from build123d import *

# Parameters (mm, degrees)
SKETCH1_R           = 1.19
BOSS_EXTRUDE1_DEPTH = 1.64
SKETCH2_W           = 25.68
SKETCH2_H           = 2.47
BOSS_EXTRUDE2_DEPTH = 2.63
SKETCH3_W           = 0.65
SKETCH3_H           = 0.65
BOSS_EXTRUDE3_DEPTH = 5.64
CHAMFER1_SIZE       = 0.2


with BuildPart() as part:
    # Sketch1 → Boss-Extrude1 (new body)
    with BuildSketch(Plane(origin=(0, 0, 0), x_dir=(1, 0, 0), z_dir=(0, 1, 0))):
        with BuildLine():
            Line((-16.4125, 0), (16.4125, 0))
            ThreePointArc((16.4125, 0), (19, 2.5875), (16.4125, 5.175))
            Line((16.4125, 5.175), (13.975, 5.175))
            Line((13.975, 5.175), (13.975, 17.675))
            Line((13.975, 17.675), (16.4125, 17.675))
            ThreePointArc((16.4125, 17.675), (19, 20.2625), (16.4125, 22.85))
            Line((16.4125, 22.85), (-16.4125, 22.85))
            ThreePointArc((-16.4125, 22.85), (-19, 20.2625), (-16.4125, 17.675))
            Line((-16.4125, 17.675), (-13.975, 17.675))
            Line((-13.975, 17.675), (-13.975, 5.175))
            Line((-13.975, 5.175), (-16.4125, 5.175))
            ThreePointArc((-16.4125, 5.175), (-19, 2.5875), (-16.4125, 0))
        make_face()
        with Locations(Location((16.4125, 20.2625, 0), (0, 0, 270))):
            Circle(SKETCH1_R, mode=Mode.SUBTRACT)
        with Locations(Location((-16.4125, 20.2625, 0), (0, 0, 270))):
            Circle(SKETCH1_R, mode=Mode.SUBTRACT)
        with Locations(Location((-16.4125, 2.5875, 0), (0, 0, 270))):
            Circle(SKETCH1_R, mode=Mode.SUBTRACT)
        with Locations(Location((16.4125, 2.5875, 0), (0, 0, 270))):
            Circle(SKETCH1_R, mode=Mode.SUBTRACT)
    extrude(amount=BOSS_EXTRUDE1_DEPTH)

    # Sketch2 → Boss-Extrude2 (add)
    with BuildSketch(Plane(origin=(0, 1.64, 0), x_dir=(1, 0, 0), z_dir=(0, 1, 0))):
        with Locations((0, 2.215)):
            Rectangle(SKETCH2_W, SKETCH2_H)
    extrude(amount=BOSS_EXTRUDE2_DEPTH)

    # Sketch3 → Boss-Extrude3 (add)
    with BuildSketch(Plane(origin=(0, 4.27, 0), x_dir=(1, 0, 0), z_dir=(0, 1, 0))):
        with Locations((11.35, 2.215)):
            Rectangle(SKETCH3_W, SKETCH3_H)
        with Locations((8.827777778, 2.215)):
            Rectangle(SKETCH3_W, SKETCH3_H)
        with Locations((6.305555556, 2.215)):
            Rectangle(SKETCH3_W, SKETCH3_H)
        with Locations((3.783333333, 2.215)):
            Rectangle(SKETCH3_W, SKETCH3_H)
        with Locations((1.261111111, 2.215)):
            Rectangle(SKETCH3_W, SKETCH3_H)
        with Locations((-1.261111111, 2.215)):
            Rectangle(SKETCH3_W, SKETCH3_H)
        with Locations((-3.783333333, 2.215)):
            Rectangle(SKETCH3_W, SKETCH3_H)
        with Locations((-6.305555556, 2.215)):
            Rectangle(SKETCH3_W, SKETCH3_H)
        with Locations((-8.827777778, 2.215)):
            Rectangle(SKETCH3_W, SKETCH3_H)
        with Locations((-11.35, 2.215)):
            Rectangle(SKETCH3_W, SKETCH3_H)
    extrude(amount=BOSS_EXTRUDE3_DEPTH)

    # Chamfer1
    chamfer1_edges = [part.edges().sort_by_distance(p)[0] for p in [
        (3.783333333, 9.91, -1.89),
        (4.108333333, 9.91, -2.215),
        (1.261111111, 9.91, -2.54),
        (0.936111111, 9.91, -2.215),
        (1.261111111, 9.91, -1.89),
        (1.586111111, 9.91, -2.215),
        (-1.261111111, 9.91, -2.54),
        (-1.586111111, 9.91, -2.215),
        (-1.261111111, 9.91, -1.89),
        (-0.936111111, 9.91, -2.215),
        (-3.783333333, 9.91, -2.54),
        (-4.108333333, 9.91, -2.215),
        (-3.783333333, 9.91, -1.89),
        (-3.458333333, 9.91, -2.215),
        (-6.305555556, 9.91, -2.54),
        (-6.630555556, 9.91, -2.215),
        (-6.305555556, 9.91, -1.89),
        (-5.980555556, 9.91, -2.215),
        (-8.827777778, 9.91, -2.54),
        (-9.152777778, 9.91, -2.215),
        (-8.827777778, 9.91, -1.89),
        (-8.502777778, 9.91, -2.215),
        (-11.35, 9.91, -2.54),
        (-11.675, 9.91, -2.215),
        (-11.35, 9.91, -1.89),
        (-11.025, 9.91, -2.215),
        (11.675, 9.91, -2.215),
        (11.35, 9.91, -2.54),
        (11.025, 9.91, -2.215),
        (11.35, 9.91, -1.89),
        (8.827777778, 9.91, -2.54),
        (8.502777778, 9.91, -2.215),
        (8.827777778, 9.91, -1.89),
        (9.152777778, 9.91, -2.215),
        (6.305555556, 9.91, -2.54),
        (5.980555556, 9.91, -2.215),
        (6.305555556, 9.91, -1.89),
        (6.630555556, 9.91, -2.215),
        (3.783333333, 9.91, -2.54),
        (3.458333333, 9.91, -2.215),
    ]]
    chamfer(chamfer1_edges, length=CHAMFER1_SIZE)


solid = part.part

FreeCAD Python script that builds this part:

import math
import FreeCAD as App
import Part
import Sketcher
Q = App.Units.Quantity


def edges_at(feature, points):
    """Names of the edges that pass closest to the given points."""
    edges = feature.Shape.Edges
    near = lambda p: min(range(len(edges)), key=lambda i: edges[i].distToShape(Part.Vertex(*p))[0])
    return sorted({f"Edge{near(p) + 1}" for p in points})

doc = App.newDocument("Part")
params = doc.addObject("Spreadsheet::Sheet", "Params")
for row, (alias, value) in enumerate([
    ("sketch1_diameter", "2.38 mm"),
    ("sketch1_height", "12.5 mm"),
    ("pad1_length", "1.64 mm"),
    ("sketch2_width", "25.68 mm"),
    ("sketch2_height", "2.47 mm"),
    ("pad2_length", "2.63 mm"),
    ("sketch3_width", "0.65 mm"),
    ("pad3_length", "5.64 mm"),
    ("chamfer_size", "0.2 mm"),
], start=1):
    params.set(f"A{row}", alias)
    params.set(f"B{row}", "=" + value)
    params.setAlias(f"B{row}", alias)

body = doc.addObject("PartDesign::Body", "Body")

# Sketch on XZ plane
sketch1 = doc.addObject("Sketcher::SketchObject", "Sketch")
body.addObject(sketch1)
sketch1.AttachmentSupport = (doc.XZ_Plane, [""])
sketch1.MapMode = "FlatFace"
sketch1.addGeometry(Part.LineSegment(App.Vector(-16.4, 0, 0), App.Vector(16.4, 0, 0)), False)
sketch1.addGeometry(Part.ArcOfCircle(Part.Circle(App.Vector(16.4, -2.6, 0), App.Vector(0, 0, 1), 2.6), math.radians(-90), math.radians(90)), False)
sketch1.addGeometry(Part.LineSegment(App.Vector(16.4, -5.2, 0), App.Vector(14, -5.2, 0)), False)
sketch1.addGeometry(Part.LineSegment(App.Vector(14, -5.2, 0), App.Vector(14, -17.7, 0)), False)
sketch1.addGeometry(Part.LineSegment(App.Vector(14, -17.7, 0), App.Vector(16.4, -17.7, 0)), False)
sketch1.addGeometry(Part.ArcOfCircle(Part.Circle(App.Vector(16.4, -20.3, 0), App.Vector(0, 0, 1), 2.6), math.radians(-90), math.radians(90)), False)
sketch1.addGeometry(Part.LineSegment(App.Vector(16.4, -22.9, 0), App.Vector(-16.4, -22.9, 0)), False)
sketch1.addGeometry(Part.ArcOfCircle(Part.Circle(App.Vector(-16.4, -20.3, 0), App.Vector(0, 0, 1), 2.6), math.radians(90), math.radians(270)), False)
sketch1.addGeometry(Part.LineSegment(App.Vector(-16.4, -17.7, 0), App.Vector(-14, -17.7, 0)), False)
sketch1.addGeometry(Part.LineSegment(App.Vector(-14, -17.7, 0), App.Vector(-14, -5.2, 0)), False)
sketch1.addGeometry(Part.LineSegment(App.Vector(-14, -5.2, 0), App.Vector(-16.4, -5.2, 0)), False)
sketch1.addGeometry(Part.ArcOfCircle(Part.Circle(App.Vector(-16.4, -2.6, 0), App.Vector(0, 0, 1), 2.6), math.radians(90), math.radians(270)), False)
sketch1.addGeometry(Part.Circle(App.Vector(-16.4, -2.6, 0), App.Vector(0, 0, 1), 1.2), False)
sketch1.addGeometry(Part.Circle(App.Vector(16.4, -2.6, 0), App.Vector(0, 0, 1), 1.2), False)
sketch1.addGeometry(Part.Circle(App.Vector(-16.4, -20.3, 0), App.Vector(0, 0, 1), 1.2), False)
sketch1.addGeometry(Part.Circle(App.Vector(16.4, -20.3, 0), App.Vector(0, 0, 1), 1.2), False)
sketch1.addConstraint(Sketcher.Constraint("Tangent", 0, 2, 1, 2))
sketch1.addConstraint(Sketcher.Constraint("Tangent", 1, 1, 2, 1))
sketch1.addConstraint(Sketcher.Constraint("Coincident", 2, 2, 3, 1))
sketch1.addConstraint(Sketcher.Constraint("Coincident", 3, 2, 4, 1))
sketch1.addConstraint(Sketcher.Constraint("Tangent", 4, 2, 5, 2))
sketch1.addConstraint(Sketcher.Constraint("Tangent", 5, 1, 6, 1))
sketch1.addConstraint(Sketcher.Constraint("Tangent", 6, 2, 7, 2))
sketch1.addConstraint(Sketcher.Constraint("Tangent", 7, 1, 8, 1))
sketch1.addConstraint(Sketcher.Constraint("Coincident", 8, 2, 9, 1))
sketch1.addConstraint(Sketcher.Constraint("Coincident", 9, 2, 10, 1))
sketch1.addConstraint(Sketcher.Constraint("Tangent", 10, 2, 11, 2))
sketch1.addConstraint(Sketcher.Constraint("Tangent", 11, 1, 0, 1))
sketch1.addConstraint(Sketcher.Constraint("Horizontal", 0))
sketch1.addConstraint(Sketcher.Constraint("Horizontal", 2))
sketch1.addConstraint(Sketcher.Constraint("Vertical", 3))
sketch1.addConstraint(Sketcher.Constraint("Horizontal", 4))
sketch1.addConstraint(Sketcher.Constraint("Horizontal", 6))
sketch1.addConstraint(Sketcher.Constraint("Horizontal", 8))
sketch1.addConstraint(Sketcher.Constraint("Vertical", 9))
sketch1.addConstraint(Sketcher.Constraint("Horizontal", 10))
sketch1.addConstraint(Sketcher.Constraint("Coincident", 12, 3, 11, 3))
sketch1.addConstraint(Sketcher.Constraint("Coincident", 13, 3, 1, 3))
sketch1.addConstraint(Sketcher.Constraint("Coincident", 14, 3, 7, 3))
sketch1.addConstraint(Sketcher.Constraint("Coincident", 15, 3, 5, 3))
sketch1.addConstraint(Sketcher.Constraint("Equal", 1, 5))
sketch1.addConstraint(Sketcher.Constraint("Equal", 5, 7))
sketch1.addConstraint(Sketcher.Constraint("Equal", 7, 11))
sketch1.addConstraint(Sketcher.Constraint("Equal", 12, 13))
sketch1.addConstraint(Sketcher.Constraint("Equal", 13, 14))
sketch1.addConstraint(Sketcher.Constraint("Equal", 14, 15))
sketch1.addConstraint(Sketcher.Constraint("Symmetric", 0, 2, 11, 1, -1, 1))
sketch1.addConstraint(Sketcher.Constraint("Vertical", 1, 3, 5, 3))
sketch1.addConstraint(Sketcher.Constraint("Vertical", 7, 3, 11, 3))
sketch1.addConstraint(Sketcher.Constraint("Equal", 4, 8))
sketch1.addConstraint(Sketcher.Constraint("Diameter", 12, Q("2.38 mm")))
sketch1.addConstraint(Sketcher.Constraint("DistanceY", 3, 2, 3, 1, Q("12.5 mm")))
sketch1.addConstraint(Sketcher.Constraint("Radius", 1, Q("2.5875 mm")))
sketch1.addConstraint(Sketcher.Constraint("DistanceX", 0, 1, 0, 2, Q("32.825 mm")))
sketch1.addConstraint(Sketcher.Constraint("DistanceX", 2, 2, 2, 1, Q("2.4375 mm")))
sketch1.setExpression("Constraints[34]", "Params.sketch1_diameter")
sketch1.setExpression("Constraints[35]", "Params.sketch1_height")
pad1 = doc.addObject("PartDesign::Pad", "Pad")
body.addObject(pad1)
pad1.Profile = sketch1
pad1.setExpression("Length", "Params.pad1_length")
pad1.Reversed = True

# Sketch on XZ plane
sketch2 = doc.addObject("Sketcher::SketchObject", "Sketch001")
body.addObject(sketch2)
sketch2.AttachmentSupport = (doc.XZ_Plane, [""])
sketch2.MapMode = "FlatFace"
sketch2.AttachmentOffset = App.Placement(App.Vector(0, 0, -1.64), App.Rotation())
sketch2.addGeometry(Part.LineSegment(App.Vector(-12.8, -3.5, 0), App.Vector(-12.8, -1, 0)), False)
sketch2.addGeometry(Part.LineSegment(App.Vector(-12.8, -1, 0), App.Vector(12.8, -1, 0)), False)
sketch2.addGeometry(Part.LineSegment(App.Vector(12.8, -1, 0), App.Vector(12.8, -3.5, 0)), False)
sketch2.addGeometry(Part.LineSegment(App.Vector(12.8, -3.5, 0), App.Vector(-12.8, -3.5, 0)), False)
sketch2.addConstraint(Sketcher.Constraint("Coincident", 0, 2, 1, 1))
sketch2.addConstraint(Sketcher.Constraint("Coincident", 1, 2, 2, 1))
sketch2.addConstraint(Sketcher.Constraint("Coincident", 2, 2, 3, 1))
sketch2.addConstraint(Sketcher.Constraint("Coincident", 3, 2, 0, 1))
sketch2.addConstraint(Sketcher.Constraint("Vertical", 0))
sketch2.addConstraint(Sketcher.Constraint("Horizontal", 1))
sketch2.addConstraint(Sketcher.Constraint("Vertical", 2))
sketch2.addConstraint(Sketcher.Constraint("Horizontal", 3))
sketch2.addConstraint(Sketcher.Constraint("DistanceX", 1, 1, 1, 2, Q("25.68 mm")))
sketch2.addConstraint(Sketcher.Constraint("DistanceY", 0, 1, 0, 2, Q("2.47 mm")))
sketch2.addConstraint(Sketcher.Constraint("DistanceX", 0, 2, -1, 1, Q("12.84 mm")))
sketch2.addConstraint(Sketcher.Constraint("DistanceY", 0, 2, -1, 1, Q("0.98 mm")))
sketch2.setExpression("Constraints[8]", "Params.sketch2_width")
sketch2.setExpression("Constraints[9]", "Params.sketch2_height")
pad2 = doc.addObject("PartDesign::Pad", "Pad001")
body.addObject(pad2)
pad2.Profile = sketch2
pad2.setExpression("Length", "Params.pad2_length")
pad2.Reversed = True

# Sketch on XZ plane
sketch3 = doc.addObject("Sketcher::SketchObject", "Sketch002")
body.addObject(sketch3)
sketch3.AttachmentSupport = (doc.XZ_Plane, [""])
sketch3.MapMode = "FlatFace"
sketch3.AttachmentOffset = App.Placement(App.Vector(0, 0, -4.27), App.Rotation())
sketch3.addGeometry(Part.LineSegment(App.Vector(11, -2.5, 0), App.Vector(11, -1.9, 0)), False)
sketch3.addGeometry(Part.LineSegment(App.Vector(11, -1.9, 0), App.Vector(11.7, -1.9, 0)), False)
sketch3.addGeometry(Part.LineSegment(App.Vector(11.7, -1.9, 0), App.Vector(11.7, -2.5, 0)), False)
sketch3.addGeometry(Part.LineSegment(App.Vector(11.7, -2.5, 0), App.Vector(11, -2.5, 0)), False)
sketch3.addGeometry(Part.LineSegment(App.Vector(8.5, -2.5, 0), App.Vector(8.5, -1.9, 0)), False)
sketch3.addGeometry(Part.LineSegment(App.Vector(8.5, -1.9, 0), App.Vector(9.2, -1.9, 0)), False)
sketch3.addGeometry(Part.LineSegment(App.Vector(9.2, -1.9, 0), App.Vector(9.2, -2.5, 0)), False)
sketch3.addGeometry(Part.LineSegment(App.Vector(9.2, -2.5, 0), App.Vector(8.5, -2.5, 0)), False)
sketch3.addGeometry(Part.LineSegment(App.Vector(6, -2.5, 0), App.Vector(6, -1.9, 0)), False)
sketch3.addGeometry(Part.LineSegment(App.Vector(6, -1.9, 0), App.Vector(6.6, -1.9, 0)), False)
sketch3.addGeometry(Part.LineSegment(App.Vector(6.6, -1.9, 0), App.Vector(6.6, -2.5, 0)), False)
sketch3.addGeometry(Part.LineSegment(App.Vector(6.6, -2.5, 0), App.Vector(6, -2.5, 0)), False)
sketch3.addGeometry(Part.LineSegment(App.Vector(3.5, -2.5, 0), App.Vector(3.5, -1.9, 0)), False)
sketch3.addGeometry(Part.LineSegment(App.Vector(3.5, -1.9, 0), App.Vector(4.1, -1.9, 0)), False)
sketch3.addGeometry(Part.LineSegment(App.Vector(4.1, -1.9, 0), App.Vector(4.1, -2.5, 0)), False)
sketch3.addGeometry(Part.LineSegment(App.Vector(4.1, -2.5, 0), App.Vector(3.5, -2.5, 0)), False)
sketch3.addGeometry(Part.LineSegment(App.Vector(0.9, -2.5, 0), App.Vector(0.9, -1.9, 0)), False)
sketch3.addGeometry(Part.LineSegment(App.Vector(0.9, -1.9, 0), App.Vector(1.6, -1.9, 0)), False)
sketch3.addGeometry(Part.LineSegment(App.Vector(1.6, -1.9, 0), App.Vector(1.6, -2.5, 0)), False)
sketch3.addGeometry(Part.LineSegment(App.Vector(1.6, -2.5, 0), App.Vector(0.9, -2.5, 0)), False)
sketch3.addGeometry(Part.LineSegment(App.Vector(-1.6, -2.5, 0), App.Vector(-1.6, -1.9, 0)), False)
sketch3.addGeometry(Part.LineSegment(App.Vector(-1.6, -1.9, 0), App.Vector(-0.9, -1.9, 0)), False)
sketch3.addGeometry(Part.LineSegment(App.Vector(-0.9, -1.9, 0), App.Vector(-0.9, -2.5, 0)), False)
sketch3.addGeometry(Part.LineSegment(App.Vector(-0.9, -2.5, 0), App.Vector(-1.6, -2.5, 0)), False)
sketch3.addGeometry(Part.LineSegment(App.Vector(-4.1, -2.5, 0), App.Vector(-4.1, -1.9, 0)), False)
sketch3.addGeometry(Part.LineSegment(App.Vector(-4.1, -1.9, 0), App.Vector(-3.5, -1.9, 0)), False)
sketch3.addGeometry(Part.LineSegment(App.Vector(-3.5, -1.9, 0), App.Vector(-3.5, -2.5, 0)), False)
sketch3.addGeometry(Part.LineSegment(App.Vector(-3.5, -2.5, 0), App.Vector(-4.1, -2.5, 0)), False)
sketch3.addGeometry(Part.LineSegment(App.Vector(-6.6, -2.5, 0), App.Vector(-6.6, -1.9, 0)), False)
sketch3.addGeometry(Part.LineSegment(App.Vector(-6.6, -1.9, 0), App.Vector(-6, -1.9, 0)), False)
sketch3.addGeometry(Part.LineSegment(App.Vector(-6, -1.9, 0), App.Vector(-6, -2.5, 0)), False)
sketch3.addGeometry(Part.LineSegment(App.Vector(-6, -2.5, 0), App.Vector(-6.6, -2.5, 0)), False)
sketch3.addGeometry(Part.LineSegment(App.Vector(-9.2, -2.5, 0), App.Vector(-9.2, -1.9, 0)), False)
sketch3.addGeometry(Part.LineSegment(App.Vector(-9.2, -1.9, 0), App.Vector(-8.5, -1.9, 0)), False)
sketch3.addGeometry(Part.LineSegment(App.Vector(-8.5, -1.9, 0), App.Vector(-8.5, -2.5, 0)), False)
sketch3.addGeometry(Part.LineSegment(App.Vector(-8.5, -2.5, 0), App.Vector(-9.2, -2.5, 0)), False)
sketch3.addGeometry(Part.LineSegment(App.Vector(-11.7, -2.5, 0), App.Vector(-11.7, -1.9, 0)), False)
sketch3.addGeometry(Part.LineSegment(App.Vector(-11.7, -1.9, 0), App.Vector(-11, -1.9, 0)), False)
sketch3.addGeometry(Part.LineSegment(App.Vector(-11, -1.9, 0), App.Vector(-11, -2.5, 0)), False)
sketch3.addGeometry(Part.LineSegment(App.Vector(-11, -2.5, 0), App.Vector(-11.7, -2.5, 0)), False)
sketch3.addConstraint(Sketcher.Constraint("Coincident", 0, 2, 1, 1))
sketch3.addConstraint(Sketcher.Constraint("Coincident", 1, 2, 2, 1))
sketch3.addConstraint(Sketcher.Constraint("Coincident", 2, 2, 3, 1))
sketch3.addConstraint(Sketcher.Constraint("Coincident", 3, 2, 0, 1))
sketch3.addConstraint(Sketcher.Constraint("Coincident", 4, 2, 5, 1))
sketch3.addConstraint(Sketcher.Constraint("Coincident", 5, 2, 6, 1))
sketch3.addConstraint(Sketcher.Constraint("Coincident", 6, 2, 7, 1))
sketch3.addConstraint(Sketcher.Constraint("Coincident", 7, 2, 4, 1))
sketch3.addConstraint(Sketcher.Constraint("Coincident", 8, 2, 9, 1))
sketch3.addConstraint(Sketcher.Constraint("Coincident", 9, 2, 10, 1))
sketch3.addConstraint(Sketcher.Constraint("Coincident", 10, 2, 11, 1))
sketch3.addConstraint(Sketcher.Constraint("Coincident", 11, 2, 8, 1))
sketch3.addConstraint(Sketcher.Constraint("Coincident", 12, 2, 13, 1))
sketch3.addConstraint(Sketcher.Constraint("Coincident", 13, 2, 14, 1))
sketch3.addConstraint(Sketcher.Constraint("Coincident", 14, 2, 15, 1))
sketch3.addConstraint(Sketcher.Constraint("Coincident", 15, 2, 12, 1))
sketch3.addConstraint(Sketcher.Constraint("Coincident", 16, 2, 17, 1))
sketch3.addConstraint(Sketcher.Constraint("Coincident", 17, 2, 18, 1))
sketch3.addConstraint(Sketcher.Constraint("Coincident", 18, 2, 19, 1))
sketch3.addConstraint(Sketcher.Constraint("Coincident", 19, 2, 16, 1))
sketch3.addConstraint(Sketcher.Constraint("Coincident", 20, 2, 21, 1))
sketch3.addConstraint(Sketcher.Constraint("Coincident", 21, 2, 22, 1))
sketch3.addConstraint(Sketcher.Constraint("Coincident", 22, 2, 23, 1))
sketch3.addConstraint(Sketcher.Constraint("Coincident", 23, 2, 20, 1))
sketch3.addConstraint(Sketcher.Constraint("Coincident", 24, 2, 25, 1))
sketch3.addConstraint(Sketcher.Constraint("Coincident", 25, 2, 26, 1))
sketch3.addConstraint(Sketcher.Constraint("Coincident", 26, 2, 27, 1))
sketch3.addConstraint(Sketcher.Constraint("Coincident", 27, 2, 24, 1))
sketch3.addConstraint(Sketcher.Constraint("Coincident", 28, 2, 29, 1))
sketch3.addConstraint(Sketcher.Constraint("Coincident", 29, 2, 30, 1))
sketch3.addConstraint(Sketcher.Constraint("Coincident", 30, 2, 31, 1))
sketch3.addConstraint(Sketcher.Constraint("Coincident", 31, 2, 28, 1))
sketch3.addConstraint(Sketcher.Constraint("Coincident", 32, 2, 33, 1))
sketch3.addConstraint(Sketcher.Constraint("Coincident", 33, 2, 34, 1))
sketch3.addConstraint(Sketcher.Constraint("Coincident", 34, 2, 35, 1))
sketch3.addConstraint(Sketcher.Constraint("Coincident", 35, 2, 32, 1))
sketch3.addConstraint(Sketcher.Constraint("Coincident", 36, 2, 37, 1))
sketch3.addConstraint(Sketcher.Constraint("Coincident", 37, 2, 38, 1))
sketch3.addConstraint(Sketcher.Constraint("Coincident", 38, 2, 39, 1))
sketch3.addConstraint(Sketcher.Constraint("Coincident", 39, 2, 36, 1))
sketch3.addConstraint(Sketcher.Constraint("Vertical", 0))
sketch3.addConstraint(Sketcher.Constraint("Horizontal", 1))
sketch3.addConstraint(Sketcher.Constraint("Vertical", 2))
sketch3.addConstraint(Sketcher.Constraint("Horizontal", 3))
sketch3.addConstraint(Sketcher.Constraint("Vertical", 4))
sketch3.addConstraint(Sketcher.Constraint("Horizontal", 5))
sketch3.addConstraint(Sketcher.Constraint("Vertical", 6))
sketch3.addConstraint(Sketcher.Constraint("Horizontal", 7))
sketch3.addConstraint(Sketcher.Constraint("Vertical", 8))
sketch3.addConstraint(Sketcher.Constraint("Horizontal", 9))
sketch3.addConstraint(Sketcher.Constraint("Vertical", 10))
sketch3.addConstraint(Sketcher.Constraint("Horizontal", 11))
sketch3.addConstraint(Sketcher.Constraint("Vertical", 12))
sketch3.addConstraint(Sketcher.Constraint("Horizontal", 13))
sketch3.addConstraint(Sketcher.Constraint("Vertical", 14))
sketch3.addConstraint(Sketcher.Constraint("Horizontal", 15))
sketch3.addConstraint(Sketcher.Constraint("Vertical", 16))
sketch3.addConstraint(Sketcher.Constraint("Horizontal", 17))
sketch3.addConstraint(Sketcher.Constraint("Vertical", 18))
sketch3.addConstraint(Sketcher.Constraint("Horizontal", 19))
sketch3.addConstraint(Sketcher.Constraint("Vertical", 20))
sketch3.addConstraint(Sketcher.Constraint("Horizontal", 21))
sketch3.addConstraint(Sketcher.Constraint("Vertical", 22))
sketch3.addConstraint(Sketcher.Constraint("Horizontal", 23))
sketch3.addConstraint(Sketcher.Constraint("Vertical", 24))
sketch3.addConstraint(Sketcher.Constraint("Horizontal", 25))
sketch3.addConstraint(Sketcher.Constraint("Vertical", 26))
sketch3.addConstraint(Sketcher.Constraint("Horizontal", 27))
sketch3.addConstraint(Sketcher.Constraint("Vertical", 28))
sketch3.addConstraint(Sketcher.Constraint("Horizontal", 29))
sketch3.addConstraint(Sketcher.Constraint("Vertical", 30))
sketch3.addConstraint(Sketcher.Constraint("Horizontal", 31))
sketch3.addConstraint(Sketcher.Constraint("Vertical", 32))
sketch3.addConstraint(Sketcher.Constraint("Horizontal", 33))
sketch3.addConstraint(Sketcher.Constraint("Vertical", 34))
sketch3.addConstraint(Sketcher.Constraint("Horizontal", 35))
sketch3.addConstraint(Sketcher.Constraint("Vertical", 36))
sketch3.addConstraint(Sketcher.Constraint("Horizontal", 37))
sketch3.addConstraint(Sketcher.Constraint("Vertical", 38))
sketch3.addConstraint(Sketcher.Constraint("Horizontal", 39))
sketch3.addConstraint(Sketcher.Constraint("Symmetric", 17, 2, 20, 2, -2))
sketch3.addConstraint(Sketcher.Constraint("Symmetric", 19, 2, 22, 2, -2))
sketch3.addConstraint(Sketcher.Constraint("Symmetric", 13, 2, 24, 2, -2))
sketch3.addConstraint(Sketcher.Constraint("Symmetric", 15, 2, 26, 2, -2))
sketch3.addConstraint(Sketcher.Constraint("Symmetric", 9, 2, 28, 2, -2))
sketch3.addConstraint(Sketcher.Constraint("Symmetric", 11, 2, 30, 2, -2))
sketch3.addConstraint(Sketcher.Constraint("Symmetric", 5, 2, 32, 2, -2))
sketch3.addConstraint(Sketcher.Constraint("Symmetric", 7, 2, 34, 2, -2))
sketch3.addConstraint(Sketcher.Constraint("Symmetric", 1, 2, 36, 2, -2))
sketch3.addConstraint(Sketcher.Constraint("Symmetric", 3, 2, 38, 2, -2))
sketch3.addConstraint(Sketcher.Constraint("Horizontal", 1, 2, 4, 2))
sketch3.addConstraint(Sketcher.Constraint("Horizontal", 3, 2, 6, 2))
sketch3.addConstraint(Sketcher.Constraint("Horizontal", 5, 2, 8, 2))
sketch3.addConstraint(Sketcher.Constraint("Horizontal", 7, 2, 10, 2))
sketch3.addConstraint(Sketcher.Constraint("Horizontal", 9, 2, 12, 2))
sketch3.addConstraint(Sketcher.Constraint("Horizontal", 11, 2, 14, 2))
sketch3.addConstraint(Sketcher.Constraint("Horizontal", 13, 2, 16, 2))
sketch3.addConstraint(Sketcher.Constraint("Horizontal", 15, 2, 18, 2))
sketch3.addConstraint(Sketcher.Constraint("Equal", 3, 5))
sketch3.addConstraint(Sketcher.Constraint("Equal", 7, 9))
sketch3.addConstraint(Sketcher.Constraint("Equal", 11, 13))
sketch3.addConstraint(Sketcher.Constraint("Equal", 15, 17))
sketch3.addConstraint(Sketcher.Constraint("Equal", 39, 0))
sketch3.addConstraint(Sketcher.Constraint("DistanceX", 1, 1, 1, 2, Q("0.65 mm")))
sketch3.addConstraint(Sketcher.Constraint("DistanceY", 0, 2, -1, 1, Q("1.89 mm")))
sketch3.addConstraint(Sketcher.Constraint("DistanceX", -1, 1, 0, 2, Q("11.025 mm")))
sketch3.addConstraint(Sketcher.Constraint("DistanceX", -1, 1, 16, 2, Q("0.936111 mm")))
sketch3.addConstraint(Sketcher.Constraint("DistanceX", -1, 1, 4, 2, Q("8.502778 mm")))
sketch3.addConstraint(Sketcher.Constraint("DistanceX", -1, 1, 8, 2, Q("5.980556 mm")))
sketch3.addConstraint(Sketcher.Constraint("DistanceX", -1, 1, 12, 2, Q("3.458333 mm")))
sketch3.setExpression("Constraints[103]", "Params.sketch3_width")
pad3 = doc.addObject("PartDesign::Pad", "Pad002")
body.addObject(pad3)
pad3.Profile = sketch3
pad3.setExpression("Length", "Params.pad3_length")
pad3.Reversed = True
doc.recompute()

chamfer = doc.addObject("PartDesign::Chamfer", "Chamfer")
body.addObject(chamfer)
chamfer.Base = (pad3, edges_at(pad3, [
    (3.783, 9.91, -1.89),
    (4.108, 9.91, -2.215),
    (1.261, 9.91, -2.54),
    (0.936, 9.91, -2.215),
    (1.261, 9.91, -1.89),
    (1.586, 9.91, -2.215),
    (-1.261, 9.91, -2.54),
    (-1.586, 9.91, -2.215),
    (-1.261, 9.91, -1.89),
    (-0.936, 9.91, -2.215),
    (-3.783, 9.91, -2.54),
    (-4.108, 9.91, -2.215),
    (-3.783, 9.91, -1.89),
    (-3.458, 9.91, -2.215),
    (-6.306, 9.91, -2.54),
    (-6.631, 9.91, -2.215),
    (-6.306, 9.91, -1.89),
    (-5.981, 9.91, -2.215),
    (-8.828, 9.91, -2.54),
    (-9.153, 9.91, -2.215),
    (-8.828, 9.91, -1.89),
    (-8.503, 9.91, -2.215),
    (-11.35, 9.91, -2.54),
    (-11.675, 9.91, -2.215),
    (-11.35, 9.91, -1.89),
    (-11.025, 9.91, -2.215),
    (11.675, 9.91, -2.215),
    (11.35, 9.91, -2.54),
    (11.025, 9.91, -2.215),
    (11.35, 9.91, -1.89),
    (8.828, 9.91, -2.54),
    (8.503, 9.91, -2.215),
    (8.828, 9.91, -1.89),
    (9.153, 9.91, -2.215),
    (6.306, 9.91, -2.54),
    (5.981, 9.91, -2.215),
    (6.306, 9.91, -1.89),
    (6.631, 9.91, -2.215),
    (3.783, 9.91, -2.54),
    (3.458, 9.91, -2.215),
]))
chamfer.setExpression("Size", "Params.chamfer_size")

doc.recompute()
